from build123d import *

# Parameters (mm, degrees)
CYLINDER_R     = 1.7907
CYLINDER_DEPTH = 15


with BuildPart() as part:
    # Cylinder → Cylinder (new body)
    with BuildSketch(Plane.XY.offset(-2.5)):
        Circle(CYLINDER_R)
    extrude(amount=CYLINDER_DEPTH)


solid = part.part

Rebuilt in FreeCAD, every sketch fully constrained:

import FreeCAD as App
import Part
import Sketcher
Q = App.Units.Quantity

doc = App.newDocument("Part")
body = doc.addObject("PartDesign::Body", "Body")

# Sketch on XY plane
sketch1 = doc.addObject("Sketcher::SketchObject", "Sketch")
body.addObject(sketch1)
sketch1.AttachmentSupport = (doc.XY_Plane, [""])
sketch1.MapMode = "FlatFace"
sketch1.AttachmentOffset = App.Placement(App.Vector(0, 0, -2.5), App.Rotation())
sketch1.addGeometry(Part.Circle(App.Vector(0, 0, 0), App.Vector(0, 0, 1), 1.8), False)
sketch1.addConstraint(Sketcher.Constraint("Coincident", 0, 3, -1, 1))
sketch1.addConstraint(Sketcher.Constraint("Diameter", 0, Q("3.5814 mm")))
pad1 = doc.addObject("PartDesign::Pad", "Pad")
body.addObject(pad1)
pad1.Profile = sketch1
pad1.Length = 15

doc.recompute()
